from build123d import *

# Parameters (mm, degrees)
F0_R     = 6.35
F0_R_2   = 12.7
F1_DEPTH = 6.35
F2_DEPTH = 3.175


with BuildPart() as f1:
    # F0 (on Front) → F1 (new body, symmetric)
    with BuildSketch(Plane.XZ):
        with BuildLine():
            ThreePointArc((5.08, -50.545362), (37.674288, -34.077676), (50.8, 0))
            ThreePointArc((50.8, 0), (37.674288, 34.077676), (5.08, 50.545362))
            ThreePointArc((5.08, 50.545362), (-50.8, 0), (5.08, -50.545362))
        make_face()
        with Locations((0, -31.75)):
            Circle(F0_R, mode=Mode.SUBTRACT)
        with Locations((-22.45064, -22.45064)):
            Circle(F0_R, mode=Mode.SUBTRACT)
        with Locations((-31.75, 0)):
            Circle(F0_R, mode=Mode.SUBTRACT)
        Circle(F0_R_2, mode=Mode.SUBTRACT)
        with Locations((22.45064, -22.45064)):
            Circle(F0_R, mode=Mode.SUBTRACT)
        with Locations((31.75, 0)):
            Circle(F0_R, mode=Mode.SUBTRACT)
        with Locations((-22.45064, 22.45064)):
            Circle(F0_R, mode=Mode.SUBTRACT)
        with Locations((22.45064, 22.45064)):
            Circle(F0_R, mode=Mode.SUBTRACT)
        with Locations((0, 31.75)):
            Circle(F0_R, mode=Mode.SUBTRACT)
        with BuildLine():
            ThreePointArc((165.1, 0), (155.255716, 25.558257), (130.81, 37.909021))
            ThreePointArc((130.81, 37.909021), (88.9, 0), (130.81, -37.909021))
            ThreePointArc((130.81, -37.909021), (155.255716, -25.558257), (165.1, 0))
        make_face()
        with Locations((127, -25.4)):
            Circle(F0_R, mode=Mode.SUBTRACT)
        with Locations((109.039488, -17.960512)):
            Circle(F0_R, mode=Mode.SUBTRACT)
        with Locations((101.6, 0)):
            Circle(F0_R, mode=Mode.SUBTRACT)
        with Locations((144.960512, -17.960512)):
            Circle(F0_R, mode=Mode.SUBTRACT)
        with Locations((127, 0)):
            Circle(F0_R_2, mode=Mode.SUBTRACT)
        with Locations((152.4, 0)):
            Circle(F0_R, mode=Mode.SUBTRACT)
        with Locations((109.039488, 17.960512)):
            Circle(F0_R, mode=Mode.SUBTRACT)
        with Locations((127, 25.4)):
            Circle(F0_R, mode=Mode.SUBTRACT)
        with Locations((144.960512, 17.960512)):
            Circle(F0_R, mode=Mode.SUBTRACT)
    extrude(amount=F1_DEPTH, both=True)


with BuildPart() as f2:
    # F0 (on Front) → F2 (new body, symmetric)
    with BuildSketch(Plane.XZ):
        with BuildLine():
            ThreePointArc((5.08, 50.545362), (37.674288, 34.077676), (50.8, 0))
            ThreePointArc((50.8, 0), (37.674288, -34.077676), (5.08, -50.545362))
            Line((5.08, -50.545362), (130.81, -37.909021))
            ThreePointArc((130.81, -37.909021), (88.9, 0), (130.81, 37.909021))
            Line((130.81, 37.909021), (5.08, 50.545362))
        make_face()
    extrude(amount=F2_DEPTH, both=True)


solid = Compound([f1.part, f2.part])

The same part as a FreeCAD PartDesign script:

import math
import FreeCAD as App
import Part
import Sketcher
from FreeCAD import Vector
Q = App.Units.Quantity

doc = App.newDocument("Part")
body = doc.addObject("PartDesign::Body", "Body")
body.AllowCompound = True

# Sketch on XZ plane
sketch1 = body.newObject("Sketcher::SketchObject", "Sketch")
sketch1.AttachmentSupport = (doc.getObject("XZ_Plane"), [""])
sketch1.MapMode = "FlatFace"
sketch1.addGeometry([
    Part.ArcOfCircle(Part.Circle(Vector(-0.000001, 0.000001, 0), Vector(0, 0, 1), 50.800001), math.radians(-84.260829), math.radians(-0.000001)),  # 0
    Part.ArcOfCircle(Part.Circle(Vector(-0.000001, -0.000001, 0), Vector(0, 0, 1), 50.800001), math.radians(0.000001), math.radians(84.260829)),  # 1
    Part.ArcOfCircle(Part.Circle(Vector(0, 0, 0), Vector(0, 0, 1), 50.8), math.radians(84.26083), math.radians(275.73917)),  # 2
    Part.Circle(Vector(-22.45064, -22.45064, 0), Vector(0, 0, 1), 6.35),  # 3
    Part.Circle(Vector(0, -31.75, 0), Vector(0, 0, 1), 6.35),  # 4
    Part.Circle(Vector(22.45064, -22.45064, 0), Vector(0, 0, 1), 6.35),  # 5
    Part.Circle(Vector(-31.75, 0, 0), Vector(0, 0, 1), 6.35),  # 6
    Part.Circle(Vector(-22.45064, 22.45064, 0), Vector(0, 0, 1), 6.35),  # 7
    Part.Circle(Vector(0, 0, 0), Vector(0, 0, 1), 12.7),  # 8
    Part.Circle(Vector(31.75, 0, 0), Vector(0, 0, 1), 6.35),  # 9
    Part.Circle(Vector(0, 31.75, 0), Vector(0, 0, 1), 6.35),  # 10
    Part.Circle(Vector(22.45064, 22.45064, 0), Vector(0, 0, 1), 6.35),  # 11
    Part.ArcOfCircle(Part.Circle(Vector(127, 0, 0), Vector(0, 0, 1), 38.1), math.radians(0), math.radians(84.26083)),  # 12
    Part.ArcOfCircle(Part.Circle(Vector(127, 0, 0), Vector(0, 0, 1), 38.1), math.radians(84.260829), math.radians(275.739171)),  # 13
    Part.ArcOfCircle(Part.Circle(Vector(127, 0, 0), Vector(0, 0, 1), 38.1), math.radians(-84.26083), math.radians(0)),  # 14
    Part.Circle(Vector(109.039488, -17.960512, 0), Vector(0, 0, 1), 6.35),  # 15
    Part.Circle(Vector(127, -25.4, 0), Vector(0, 0, 1), 6.35),  # 16
    Part.Circle(Vector(144.960512, -17.960512, 0), Vector(0, 0, 1), 6.35),  # 17
    Part.Circle(Vector(101.6, 0, 0), Vector(0, 0, 1), 6.35),  # 18
    Part.Circle(Vector(109.039488, 17.960512, 0), Vector(0, 0, 1), 6.35),  # 19
    Part.Circle(Vector(127, 0, 0), Vector(0, 0, 1), 12.7),  # 20
    Part.Circle(Vector(152.4, 0, 0), Vector(0, 0, 1), 6.35),  # 21
    Part.Circle(Vector(127, 25.4, 0), Vector(0, 0, 1), 6.35),  # 22
    Part.Circle(Vector(144.960512, 17.960512, 0), Vector(0, 0, 1), 6.35),  # 23
], False)
sketch1.addConstraint([
    Sketcher.Constraint("Tangent", 0, 2, 1, 1),
    Sketcher.Constraint("Tangent", 1, 2, 2, 1),
    Sketcher.Constraint("Tangent", 2, 2, 0, 1),
    Sketcher.Constraint("Tangent", 12, 2, 13, 1),
    Sketcher.Constraint("Tangent", 13, 2, 14, 1),
    Sketcher.Constraint("Tangent", 14, 2, 12, 1),
    Sketcher.Constraint("Coincident", 0, 3, -1, 1),
    Sketcher.Constraint("Coincident", 8, 3, -1, 1),
    Sketcher.Constraint("Coincident", 20, 3, 12, 3),
    Sketcher.Constraint("Equal", 3, 4),
    Sketcher.Constraint("Equal", 4, 5),
    Sketcher.Constraint("Equal", 5, 6),
    Sketcher.Constraint("Equal", 6, 7),
    Sketcher.Constraint("Equal", 7, 9),
    Sketcher.Constraint("Equal", 9, 10),
    Sketcher.Constraint("Equal", 10, 11),
    Sketcher.Constraint("Equal", 11, 15),
    Sketcher.Constraint("Equal", 15, 16),
    Sketcher.Constraint("Equal", 16, 17),
    Sketcher.Constraint("Equal", 17, 18),
    Sketcher.Constraint("Equal", 18, 19),
    Sketcher.Constraint("Equal", 8, 20),
    Sketcher.Constraint("Equal", 19, 21),
    Sketcher.Constraint("Equal", 21, 22),
    Sketcher.Constraint("Equal", 22, 23),
    Sketcher.Constraint("Symmetric", 5, 3, 7, 3, -1, 1),
    Sketcher.Constraint("Symmetric", 6, 3, 9, 3, -1, 1),
    Sketcher.Constraint("Symmetric", 4, 3, 10, 3, -1, 1),
    Sketcher.Constraint("Symmetric", 3, 3, 11, 3, -1, 1),
    Sketcher.Constraint("Symmetric", 3, 3, 5, 3, -2),
    Sketcher.Constraint("Symmetric", 15, 3, 19, 3, -1),
    Sketcher.Constraint("Symmetric", 16, 3, 22, 3, -1),
    Sketcher.Constraint("Symmetric", 17, 3, 23, 3, -1),
    Sketcher.Constraint("Symmetric", 12, 2, 13, 2, -1),
    Sketcher.Constraint("PointOnObject", 4, 3, -2),
    Sketcher.Constraint("PointOnObject", 6, 3, -1),
    Sketcher.Constraint("PointOnObject", 18, 3, -1),
    Sketcher.Constraint("PointOnObject", 21, 3, -1),
    Sketcher.Constraint("PointOnObject", 0, 2, -1),
    Sketcher.Constraint("PointOnObject", 14, 2, -1),
    Sketcher.Constraint("Horizontal", 15, 3, 17, 3),
    Sketcher.Constraint("Vertical", 14, 3, 16, 3),
    Sketcher.Constraint("Vertical", 1, 2, 2, 2),
    Sketcher.Constraint("Diameter", 8, Q("1 in")),
    Sketcher.Constraint("Radius", 0, Q("2 in")),
    Sketcher.Constraint("Diameter", 3, Q("0.5 in")),
    Sketcher.Constraint("Radius", 12, Q("1.5 in")),
    Sketcher.Constraint("DistanceX", -1, 1, 12, 3, Q("5 in")),
    Sketcher.Constraint("DistanceY", 16, 3, -1, 1, Q("1 in")),
    Sketcher.Constraint("DistanceX", -1, 1, 18, 3, Q("4 in")),
    Sketcher.Constraint("DistanceX", -1, 1, 21, 3, Q("6 in")),
    Sketcher.Constraint("DistanceX", -1, 1, 1, 2, Q("0.2 in")),
    Sketcher.Constraint("DistanceY", 4, 3, -1, 1, Q("1.25 in")),
    Sketcher.Constraint("DistanceX", 6, 3, -1, 1, Q("1.25 in")),
    Sketcher.Constraint("DistanceX", -1, 1, 12, 2, Q("5.15 in")),
    Sketcher.Constraint("DistanceX", 3, 3, -1, 1, Q("22.45064 mm")),
    Sketcher.Constraint("DistanceY", 3, 3, -1, 1, Q("22.45064 mm")),
    Sketcher.Constraint("DistanceX", -1, 1, 15, 3, Q("109.039488 mm")),
    Sketcher.Constraint("DistanceX", -1, 1, 17, 3, Q("144.960512 mm")),
    Sketcher.Constraint("DistanceY", 15, 3, 12, 3, Q("17.960512 mm")),
])
pad1 = body.newObject("PartDesign::Pad", "Pad")
pad1.Profile = sketch1
pad1.Length = Q("0.5 in")
pad1.Midplane = True
body2 = doc.addObject("PartDesign::Body", "Body001")

# Sketch on XZ plane
sketch2 = body2.newObject("Sketcher::SketchObject", "Sketch001")
sketch2.AttachmentSupport = (doc.getObject("XZ_Plane001"), [""])
sketch2.MapMode = "FlatFace"
sketch2.addGeometry([
    Part.ArcOfCircle(Part.Circle(Vector(-0.000001, -0.000001, 0), Vector(0, 0, 1), 50.800001), math.radians(0.000001), math.radians(84.260829)),  # 0
    Part.ArcOfCircle(Part.Circle(Vector(-0.000001, 0.000001, 0), Vector(0, 0, 1), 50.800001), math.radians(-84.260829), math.radians(-0.000001)),  # 1
    Part.LineSegment(Vector(5.08, -50.545362, 0), Vector(130.81, -37.909021, 0)),  # 2
    Part.ArcOfCircle(Part.Circle(Vector(127, 0, 0), Vector(0, 0, 1), 38.1), math.radians(84.260829), math.radians(275.739171)),  # 3
    Part.LineSegment(Vector(130.81, 37.909021, 0), Vector(5.08, 50.545362, 0)),  # 4
], False)
sketch2.addConstraint([
    Sketcher.Constraint("Tangent", 0, 1, 1, 2),
    Sketcher.Constraint("Tangent", 1, 1, 2, 1),
    Sketcher.Constraint("Tangent", 2, 2, 3, 2),
    Sketcher.Constraint("Tangent", 3, 1, 4, 1),
    Sketcher.Constraint("Tangent", 4, 2, 0, 2),
    Sketcher.Constraint("Coincident", 0, 3, -1, 1),
    Sketcher.Constraint("Equal", 0, 1),
    Sketcher.Constraint("PointOnObject", 3, 3, -1),
    Sketcher.Constraint("PointOnObject", 0, 1, -1),
    Sketcher.Constraint("Radius", 0, Q("2 in")),
    Sketcher.Constraint("Radius", 3, Q("1.5 in")),
    Sketcher.Constraint("DistanceX", -1, 1, 3, 3, Q("5 in")),
])
pad2 = body2.newObject("PartDesign::Pad", "Pad001")
pad2.Profile = sketch2
pad2.Length = Q("0.25 in")
pad2.Midplane = True

doc.recompute()
